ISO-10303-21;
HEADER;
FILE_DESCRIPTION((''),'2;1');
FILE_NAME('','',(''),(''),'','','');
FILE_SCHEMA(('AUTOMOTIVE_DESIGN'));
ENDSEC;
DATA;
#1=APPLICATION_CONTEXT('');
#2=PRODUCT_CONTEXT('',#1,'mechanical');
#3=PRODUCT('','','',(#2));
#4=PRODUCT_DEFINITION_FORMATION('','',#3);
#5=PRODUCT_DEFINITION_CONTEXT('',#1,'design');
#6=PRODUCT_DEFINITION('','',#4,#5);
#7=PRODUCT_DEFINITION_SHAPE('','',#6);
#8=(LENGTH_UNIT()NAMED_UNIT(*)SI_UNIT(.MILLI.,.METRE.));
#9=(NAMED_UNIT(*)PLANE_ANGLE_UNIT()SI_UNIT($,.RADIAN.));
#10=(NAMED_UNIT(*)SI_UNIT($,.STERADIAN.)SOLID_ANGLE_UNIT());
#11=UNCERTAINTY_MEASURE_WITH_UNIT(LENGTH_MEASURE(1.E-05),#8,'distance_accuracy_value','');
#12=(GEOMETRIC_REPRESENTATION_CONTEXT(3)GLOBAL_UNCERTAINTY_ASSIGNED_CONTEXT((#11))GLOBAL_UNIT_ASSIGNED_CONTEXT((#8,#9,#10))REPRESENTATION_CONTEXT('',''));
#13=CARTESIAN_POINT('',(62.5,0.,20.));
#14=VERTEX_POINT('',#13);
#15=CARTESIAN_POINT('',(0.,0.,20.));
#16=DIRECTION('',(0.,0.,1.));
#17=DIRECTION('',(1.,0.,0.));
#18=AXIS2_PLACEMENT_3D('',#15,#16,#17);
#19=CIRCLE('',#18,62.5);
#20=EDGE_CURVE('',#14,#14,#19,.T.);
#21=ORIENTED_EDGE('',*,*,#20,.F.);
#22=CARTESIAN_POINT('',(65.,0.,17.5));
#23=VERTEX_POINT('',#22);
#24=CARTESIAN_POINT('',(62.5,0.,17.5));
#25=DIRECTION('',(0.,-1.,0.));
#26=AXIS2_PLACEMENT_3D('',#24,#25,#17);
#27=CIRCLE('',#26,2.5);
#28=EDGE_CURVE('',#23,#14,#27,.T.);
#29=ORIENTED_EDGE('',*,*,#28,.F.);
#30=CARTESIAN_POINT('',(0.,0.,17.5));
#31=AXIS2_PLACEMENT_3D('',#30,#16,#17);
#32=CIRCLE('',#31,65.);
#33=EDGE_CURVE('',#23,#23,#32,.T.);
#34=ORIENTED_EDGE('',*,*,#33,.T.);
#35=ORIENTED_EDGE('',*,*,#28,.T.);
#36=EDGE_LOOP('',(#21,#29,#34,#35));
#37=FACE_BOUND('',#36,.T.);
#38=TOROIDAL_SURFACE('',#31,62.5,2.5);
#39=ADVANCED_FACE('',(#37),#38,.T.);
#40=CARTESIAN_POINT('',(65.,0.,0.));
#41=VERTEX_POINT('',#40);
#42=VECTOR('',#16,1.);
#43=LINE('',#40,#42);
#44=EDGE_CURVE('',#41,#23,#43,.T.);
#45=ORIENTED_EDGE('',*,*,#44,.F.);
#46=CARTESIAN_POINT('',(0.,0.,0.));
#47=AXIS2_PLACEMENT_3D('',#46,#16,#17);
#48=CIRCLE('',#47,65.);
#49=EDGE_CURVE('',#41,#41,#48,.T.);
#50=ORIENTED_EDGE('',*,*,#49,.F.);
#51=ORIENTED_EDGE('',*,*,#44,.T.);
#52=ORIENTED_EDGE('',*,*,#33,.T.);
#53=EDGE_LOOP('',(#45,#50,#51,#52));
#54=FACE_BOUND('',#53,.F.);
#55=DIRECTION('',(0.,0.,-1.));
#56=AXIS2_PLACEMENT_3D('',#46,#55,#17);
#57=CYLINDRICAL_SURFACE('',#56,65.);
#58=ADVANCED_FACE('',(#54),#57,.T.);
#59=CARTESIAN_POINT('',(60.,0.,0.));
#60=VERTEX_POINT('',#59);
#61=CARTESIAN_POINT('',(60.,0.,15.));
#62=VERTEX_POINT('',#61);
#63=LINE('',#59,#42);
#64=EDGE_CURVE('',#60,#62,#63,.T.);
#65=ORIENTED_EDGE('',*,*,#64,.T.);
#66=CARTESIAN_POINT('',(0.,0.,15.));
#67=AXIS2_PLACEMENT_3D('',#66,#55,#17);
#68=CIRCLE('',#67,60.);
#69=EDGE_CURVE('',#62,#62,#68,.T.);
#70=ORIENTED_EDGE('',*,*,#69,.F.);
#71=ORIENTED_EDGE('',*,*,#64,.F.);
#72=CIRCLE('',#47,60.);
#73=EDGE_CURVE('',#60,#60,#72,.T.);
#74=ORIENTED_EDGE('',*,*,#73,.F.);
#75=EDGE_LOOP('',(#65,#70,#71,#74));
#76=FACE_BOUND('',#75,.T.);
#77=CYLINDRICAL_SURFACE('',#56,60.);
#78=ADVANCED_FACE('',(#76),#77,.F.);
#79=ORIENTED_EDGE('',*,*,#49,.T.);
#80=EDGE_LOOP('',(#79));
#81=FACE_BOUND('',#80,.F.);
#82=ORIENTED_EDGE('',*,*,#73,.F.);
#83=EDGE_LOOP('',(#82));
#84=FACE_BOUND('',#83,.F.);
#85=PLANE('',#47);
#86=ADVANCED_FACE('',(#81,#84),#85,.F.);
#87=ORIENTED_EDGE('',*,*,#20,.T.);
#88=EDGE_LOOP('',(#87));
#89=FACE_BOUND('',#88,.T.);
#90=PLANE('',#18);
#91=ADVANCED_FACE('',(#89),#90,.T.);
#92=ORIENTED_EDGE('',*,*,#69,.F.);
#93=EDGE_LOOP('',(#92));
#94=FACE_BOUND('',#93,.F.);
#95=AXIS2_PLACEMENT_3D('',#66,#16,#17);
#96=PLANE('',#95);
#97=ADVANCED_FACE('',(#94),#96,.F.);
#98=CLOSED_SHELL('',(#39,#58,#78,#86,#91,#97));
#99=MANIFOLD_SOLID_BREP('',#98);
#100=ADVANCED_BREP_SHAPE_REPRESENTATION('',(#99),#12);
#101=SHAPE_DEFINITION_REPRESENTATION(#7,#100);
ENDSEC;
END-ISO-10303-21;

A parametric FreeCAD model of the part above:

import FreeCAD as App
import Part
import Sketcher

V = App.Vector
Q = App.Units.Quantity


def edges_at(feature, points):
    """Names of the edges that pass closest to the given points."""
    edges = feature.Shape.Edges
    near = lambda p: min(range(len(edges)), key=lambda i: edges[i].distToShape(Part.Vertex(*p))[0])
    return sorted({f"Edge{near(p) + 1}" for p in points})


def faces_at(feature, points):
    """Names of the faces that lie closest to the given points."""
    faces = feature.Shape.Faces
    near = lambda p: min(range(len(faces)), key=lambda i: faces[i].distToShape(Part.Vertex(*p))[0])
    return sorted({f"Face{near(p) + 1}" for p in points})

doc = App.newDocument("Part")
body = doc.addObject("PartDesign::Body", "Body")

sketch1 = doc.addObject("Sketcher::SketchObject", "Sketch")
body.addObject(sketch1)
sketch1.AttachmentSupport = (doc.XY_Plane, [""])
sketch1.MapMode = "FlatFace"
sketch1.addGeometry(Part.Circle(V(0, 0, 0), V(0, 0, 1), 65), False)
sketch1.addConstraint(Sketcher.Constraint("Coincident", 0, 3, -1, 1))
sketch1.addConstraint(Sketcher.Constraint("Diameter", 0, Q("130 mm")))
pad1 = doc.addObject("PartDesign::Pad", "Pad")
body.addObject(pad1)
pad1.Profile = sketch1
pad1.Length = 20
doc.recompute()

thickness = doc.addObject("PartDesign::Thickness", "Thickness")
body.addObject(thickness)
thickness.Base = (pad1, faces_at(pad1, [(0, 0, 0)]))
thickness.Value = 5
thickness.Reversed = True
thickness.Join = "Arc"
doc.recompute()

fillet = doc.addObject("PartDesign::Fillet", "Fillet")
body.addObject(fillet)
fillet.Base = (thickness, edges_at(thickness, [(-65, 0, 20)]))
fillet.Radius = 2.5

doc.recompute()
